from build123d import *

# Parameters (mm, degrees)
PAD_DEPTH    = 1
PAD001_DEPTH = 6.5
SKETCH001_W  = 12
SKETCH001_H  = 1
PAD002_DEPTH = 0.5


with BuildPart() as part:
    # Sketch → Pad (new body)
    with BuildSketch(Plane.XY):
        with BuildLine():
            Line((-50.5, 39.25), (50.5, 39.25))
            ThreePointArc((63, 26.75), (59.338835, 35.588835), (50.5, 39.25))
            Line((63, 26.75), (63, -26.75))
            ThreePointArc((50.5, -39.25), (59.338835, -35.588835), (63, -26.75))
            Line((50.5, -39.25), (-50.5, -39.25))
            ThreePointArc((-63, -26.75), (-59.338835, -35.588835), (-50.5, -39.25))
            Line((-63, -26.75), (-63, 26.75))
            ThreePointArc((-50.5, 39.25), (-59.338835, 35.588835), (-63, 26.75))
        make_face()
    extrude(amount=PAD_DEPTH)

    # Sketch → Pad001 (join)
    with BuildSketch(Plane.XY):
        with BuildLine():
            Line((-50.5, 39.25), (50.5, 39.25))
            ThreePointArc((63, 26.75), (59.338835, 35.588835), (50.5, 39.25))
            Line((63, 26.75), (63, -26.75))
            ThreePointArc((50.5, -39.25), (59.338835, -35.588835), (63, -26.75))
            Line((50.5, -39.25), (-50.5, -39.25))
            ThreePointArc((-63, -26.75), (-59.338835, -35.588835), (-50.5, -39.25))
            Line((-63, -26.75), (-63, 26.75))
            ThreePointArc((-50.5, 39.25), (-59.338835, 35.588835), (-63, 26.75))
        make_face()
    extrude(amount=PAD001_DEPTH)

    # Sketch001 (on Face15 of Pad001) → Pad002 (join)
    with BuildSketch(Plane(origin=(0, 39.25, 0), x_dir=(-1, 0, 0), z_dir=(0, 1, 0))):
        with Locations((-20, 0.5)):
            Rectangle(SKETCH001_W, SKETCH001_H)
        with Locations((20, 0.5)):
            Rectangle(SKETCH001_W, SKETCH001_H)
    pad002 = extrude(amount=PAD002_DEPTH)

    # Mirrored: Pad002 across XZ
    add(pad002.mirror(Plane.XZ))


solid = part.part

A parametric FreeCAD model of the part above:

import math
import FreeCAD as App
import Part
import Sketcher

V = App.Vector
Q = App.Units.Quantity


def add_polygon(sketch, points):
    """Adds a closed chain of lines whose ends are joined by coincident constraints."""
    first, n = sketch.GeometryCount, len(points)
    for a, b in zip(points, points[1:] + points[:1]):
        sketch.addGeometry(Part.LineSegment(App.Vector(*a, 0), App.Vector(*b, 0)), False)
    for i in range(n):
        sketch.addConstraint(Sketcher.Constraint("Coincident", first + i, 2, first + (i + 1) % n, 1))

doc = App.newDocument("Part")
body = doc.addObject("PartDesign::Body", "Body")

# Sketch on XY plane
sketch1 = doc.addObject("Sketcher::SketchObject", "Sketch")
body.addObject(sketch1)
sketch1.AttachmentSupport = (doc.XY_Plane, [""])
sketch1.MapMode = "FlatFace"
sketch1.addGeometry(Part.LineSegment(V(50.5, 39.25, 0), V(-50.5, 39.25, 0)), False)
sketch1.addGeometry(Part.ArcOfCircle(Part.Circle(V(-50.500001, 26.750001, 0), V(0, 0, 1), 12.499999), math.radians(89.999996), math.radians(180.000004)), False)
sketch1.addGeometry(Part.LineSegment(V(-63, 26.75, 0), V(-63, -26.75, 0)), False)
sketch1.addGeometry(Part.ArcOfCircle(Part.Circle(V(-50.500001, -26.750001, 0), V(0, 0, 1), 12.499999), math.radians(179.999996), math.radians(270.000004)), False)
sketch1.addGeometry(Part.LineSegment(V(-50.5, -39.25, 0), V(50.5, -39.25, 0)), False)
sketch1.addGeometry(Part.ArcOfCircle(Part.Circle(V(50.500001, -26.750001, 0), V(0, 0, 1), 12.499999), math.radians(-90.000004), math.radians(0.000004)), False)
sketch1.addGeometry(Part.LineSegment(V(63, -26.75, 0), V(63, 26.75, 0)), False)
sketch1.addGeometry(Part.ArcOfCircle(Part.Circle(V(50.500001, 26.750001, 0), V(0, 0, 1), 12.499999), math.radians(-0.000004), math.radians(90.000004)), False)
sketch1.addConstraint(Sketcher.Constraint("Tangent", 0, 2, 1, 1))
sketch1.addConstraint(Sketcher.Constraint("Tangent", 1, 2, 2, 1))
sketch1.addConstraint(Sketcher.Constraint("Tangent", 2, 2, 3, 1))
sketch1.addConstraint(Sketcher.Constraint("Tangent", 3, 2, 4, 1))
sketch1.addConstraint(Sketcher.Constraint("Tangent", 4, 2, 5, 1))
sketch1.addConstraint(Sketcher.Constraint("Tangent", 5, 2, 6, 1))
sketch1.addConstraint(Sketcher.Constraint("Tangent", 6, 2, 7, 1))
sketch1.addConstraint(Sketcher.Constraint("Tangent", 7, 2, 0, 1))
sketch1.addConstraint(Sketcher.Constraint("Horizontal", 0))
sketch1.addConstraint(Sketcher.Constraint("Vertical", 2))
sketch1.addConstraint(Sketcher.Constraint("Horizontal", 4))
sketch1.addConstraint(Sketcher.Constraint("Vertical", 6))
sketch1.addConstraint(Sketcher.Constraint("Equal", 1, 3))
sketch1.addConstraint(Sketcher.Constraint("Equal", 3, 5))
sketch1.addConstraint(Sketcher.Constraint("Equal", 5, 7))
sketch1.addConstraint(Sketcher.Constraint("Symmetric", 1, 3, 5, 3, -1, 1))
sketch1.addConstraint(Sketcher.Constraint("Radius", 1, Q("12.499999 mm")))
sketch1.addConstraint(Sketcher.Constraint("DistanceX", 0, 2, 0, 1, Q("101 mm")))
sketch1.addConstraint(Sketcher.Constraint("DistanceY", 2, 2, 2, 1, Q("53.5 mm")))
pad1 = doc.addObject("PartDesign::Pad", "Pad")
body.addObject(pad1)
pad1.Profile = sketch1
pad1.Length = 1

# Sketch on XY plane
sketch2 = doc.addObject("Sketcher::SketchObject", "Sketch001")
body.addObject(sketch2)
sketch2.AttachmentSupport = (doc.XY_Plane, [""])
sketch2.MapMode = "FlatFace"
sketch2.addGeometry(Part.LineSegment(V(50.5, 39.25, 0), V(-50.5, 39.25, 0)), False)
sketch2.addGeometry(Part.ArcOfCircle(Part.Circle(V(-50.500001, 26.750001, 0), V(0, 0, 1), 12.499999), math.radians(89.999996), math.radians(180.000004)), False)
sketch2.addGeometry(Part.LineSegment(V(-63, 26.75, 0), V(-63, -26.75, 0)), False)
sketch2.addGeometry(Part.ArcOfCircle(Part.Circle(V(-50.500001, -26.750001, 0), V(0, 0, 1), 12.499999), math.radians(179.999996), math.radians(270.000004)), False)
sketch2.addGeometry(Part.LineSegment(V(-50.5, -39.25, 0), V(50.5, -39.25, 0)), False)
sketch2.addGeometry(Part.ArcOfCircle(Part.Circle(V(50.500001, -26.750001, 0), V(0, 0, 1), 12.499999), math.radians(-90.000004), math.radians(0.000004)), False)
sketch2.addGeometry(Part.LineSegment(V(63, -26.75, 0), V(63, 26.75, 0)), False)
sketch2.addGeometry(Part.ArcOfCircle(Part.Circle(V(50.500001, 26.750001, 0), V(0, 0, 1), 12.499999), math.radians(-0.000004), math.radians(90.000004)), False)
sketch2.addConstraint(Sketcher.Constraint("Tangent", 0, 2, 1, 1))
sketch2.addConstraint(Sketcher.Constraint("Tangent", 1, 2, 2, 1))
sketch2.addConstraint(Sketcher.Constraint("Tangent", 2, 2, 3, 1))
sketch2.addConstraint(Sketcher.Constraint("Tangent", 3, 2, 4, 1))
sketch2.addConstraint(Sketcher.Constraint("Tangent", 4, 2, 5, 1))
sketch2.addConstraint(Sketcher.Constraint("Tangent", 5, 2, 6, 1))
sketch2.addConstraint(Sketcher.Constraint("Tangent", 6, 2, 7, 1))
sketch2.addConstraint(Sketcher.Constraint("Tangent", 7, 2, 0, 1))
sketch2.addConstraint(Sketcher.Constraint("Horizontal", 0))
sketch2.addConstraint(Sketcher.Constraint("Vertical", 2))
sketch2.addConstraint(Sketcher.Constraint("Horizontal", 4))
sketch2.addConstraint(Sketcher.Constraint("Vertical", 6))
sketch2.addConstraint(Sketcher.Constraint("Equal", 1, 3))
sketch2.addConstraint(Sketcher.Constraint("Equal", 3, 5))
sketch2.addConstraint(Sketcher.Constraint("Equal", 5, 7))
sketch2.addConstraint(Sketcher.Constraint("Symmetric", 1, 3, 5, 3, -1, 1))
sketch2.addConstraint(Sketcher.Constraint("Radius", 1, Q("12.499999 mm")))
sketch2.addConstraint(Sketcher.Constraint("DistanceX", 0, 2, 0, 1, Q("101 mm")))
sketch2.addConstraint(Sketcher.Constraint("DistanceY", 2, 2, 2, 1, Q("53.5 mm")))
pad2 = doc.addObject("PartDesign::Pad", "Pad001")
body.addObject(pad2)
pad2.Profile = sketch2
pad2.Length = 6.5

# Sketch on XZ plane
sketch3 = doc.addObject("Sketcher::SketchObject", "Sketch002")
body.addObject(sketch3)
sketch3.AttachmentSupport = (doc.XZ_Plane, [""])
sketch3.MapMode = "FlatFace"
sketch3.AttachmentOffset = App.Placement(V(0, 0, -39.25), App.Rotation())
add_polygon(sketch3, [(26, 1), (26, 0), (14, 0), (14, 1)])  # lines 0-3
add_polygon(sketch3, [(-14, 1), (-14, 0), (-26, 0), (-26, 1)])  # lines 4-7
sketch3.addConstraint(Sketcher.Constraint("Vertical", 0))
sketch3.addConstraint(Sketcher.Constraint("Horizontal", 1))
sketch3.addConstraint(Sketcher.Constraint("Vertical", 2))
sketch3.addConstraint(Sketcher.Constraint("Horizontal", 3))
sketch3.addConstraint(Sketcher.Constraint("Vertical", 4))
sketch3.addConstraint(Sketcher.Constraint("Horizontal", 5))
sketch3.addConstraint(Sketcher.Constraint("Vertical", 6))
sketch3.addConstraint(Sketcher.Constraint("Horizontal", 7))
sketch3.addConstraint(Sketcher.Constraint("Symmetric", 1, 2, 4, 2, -1, 1))
sketch3.addConstraint(Sketcher.Constraint("Symmetric", 0, 2, 5, 2, -2))
sketch3.addConstraint(Sketcher.Constraint("Horizontal", 3, 2, 6, 2))
sketch3.addConstraint(Sketcher.Constraint("DistanceX", 1, 2, 1, 1, Q("12 mm")))
sketch3.addConstraint(Sketcher.Constraint("DistanceY", 0, 2, 0, 1, Q("1 mm")))
sketch3.addConstraint(Sketcher.Constraint("DistanceX", -1, 1, 0, 2, Q("26 mm")))
pad3 = doc.addObject("PartDesign::Pad", "Pad002")
body.addObject(pad3)
pad3.Profile = sketch3
pad3.Length = 0.5
pad3.Reversed = True
doc.recompute()

mirrored = doc.addObject("PartDesign::Mirrored", "Mirrored")
body.addObject(mirrored)
mirrored.Originals = [pad3]
mirrored.MirrorPlane = (doc.XZ_Plane, [""])
body.Tip = mirrored

doc.recompute()
